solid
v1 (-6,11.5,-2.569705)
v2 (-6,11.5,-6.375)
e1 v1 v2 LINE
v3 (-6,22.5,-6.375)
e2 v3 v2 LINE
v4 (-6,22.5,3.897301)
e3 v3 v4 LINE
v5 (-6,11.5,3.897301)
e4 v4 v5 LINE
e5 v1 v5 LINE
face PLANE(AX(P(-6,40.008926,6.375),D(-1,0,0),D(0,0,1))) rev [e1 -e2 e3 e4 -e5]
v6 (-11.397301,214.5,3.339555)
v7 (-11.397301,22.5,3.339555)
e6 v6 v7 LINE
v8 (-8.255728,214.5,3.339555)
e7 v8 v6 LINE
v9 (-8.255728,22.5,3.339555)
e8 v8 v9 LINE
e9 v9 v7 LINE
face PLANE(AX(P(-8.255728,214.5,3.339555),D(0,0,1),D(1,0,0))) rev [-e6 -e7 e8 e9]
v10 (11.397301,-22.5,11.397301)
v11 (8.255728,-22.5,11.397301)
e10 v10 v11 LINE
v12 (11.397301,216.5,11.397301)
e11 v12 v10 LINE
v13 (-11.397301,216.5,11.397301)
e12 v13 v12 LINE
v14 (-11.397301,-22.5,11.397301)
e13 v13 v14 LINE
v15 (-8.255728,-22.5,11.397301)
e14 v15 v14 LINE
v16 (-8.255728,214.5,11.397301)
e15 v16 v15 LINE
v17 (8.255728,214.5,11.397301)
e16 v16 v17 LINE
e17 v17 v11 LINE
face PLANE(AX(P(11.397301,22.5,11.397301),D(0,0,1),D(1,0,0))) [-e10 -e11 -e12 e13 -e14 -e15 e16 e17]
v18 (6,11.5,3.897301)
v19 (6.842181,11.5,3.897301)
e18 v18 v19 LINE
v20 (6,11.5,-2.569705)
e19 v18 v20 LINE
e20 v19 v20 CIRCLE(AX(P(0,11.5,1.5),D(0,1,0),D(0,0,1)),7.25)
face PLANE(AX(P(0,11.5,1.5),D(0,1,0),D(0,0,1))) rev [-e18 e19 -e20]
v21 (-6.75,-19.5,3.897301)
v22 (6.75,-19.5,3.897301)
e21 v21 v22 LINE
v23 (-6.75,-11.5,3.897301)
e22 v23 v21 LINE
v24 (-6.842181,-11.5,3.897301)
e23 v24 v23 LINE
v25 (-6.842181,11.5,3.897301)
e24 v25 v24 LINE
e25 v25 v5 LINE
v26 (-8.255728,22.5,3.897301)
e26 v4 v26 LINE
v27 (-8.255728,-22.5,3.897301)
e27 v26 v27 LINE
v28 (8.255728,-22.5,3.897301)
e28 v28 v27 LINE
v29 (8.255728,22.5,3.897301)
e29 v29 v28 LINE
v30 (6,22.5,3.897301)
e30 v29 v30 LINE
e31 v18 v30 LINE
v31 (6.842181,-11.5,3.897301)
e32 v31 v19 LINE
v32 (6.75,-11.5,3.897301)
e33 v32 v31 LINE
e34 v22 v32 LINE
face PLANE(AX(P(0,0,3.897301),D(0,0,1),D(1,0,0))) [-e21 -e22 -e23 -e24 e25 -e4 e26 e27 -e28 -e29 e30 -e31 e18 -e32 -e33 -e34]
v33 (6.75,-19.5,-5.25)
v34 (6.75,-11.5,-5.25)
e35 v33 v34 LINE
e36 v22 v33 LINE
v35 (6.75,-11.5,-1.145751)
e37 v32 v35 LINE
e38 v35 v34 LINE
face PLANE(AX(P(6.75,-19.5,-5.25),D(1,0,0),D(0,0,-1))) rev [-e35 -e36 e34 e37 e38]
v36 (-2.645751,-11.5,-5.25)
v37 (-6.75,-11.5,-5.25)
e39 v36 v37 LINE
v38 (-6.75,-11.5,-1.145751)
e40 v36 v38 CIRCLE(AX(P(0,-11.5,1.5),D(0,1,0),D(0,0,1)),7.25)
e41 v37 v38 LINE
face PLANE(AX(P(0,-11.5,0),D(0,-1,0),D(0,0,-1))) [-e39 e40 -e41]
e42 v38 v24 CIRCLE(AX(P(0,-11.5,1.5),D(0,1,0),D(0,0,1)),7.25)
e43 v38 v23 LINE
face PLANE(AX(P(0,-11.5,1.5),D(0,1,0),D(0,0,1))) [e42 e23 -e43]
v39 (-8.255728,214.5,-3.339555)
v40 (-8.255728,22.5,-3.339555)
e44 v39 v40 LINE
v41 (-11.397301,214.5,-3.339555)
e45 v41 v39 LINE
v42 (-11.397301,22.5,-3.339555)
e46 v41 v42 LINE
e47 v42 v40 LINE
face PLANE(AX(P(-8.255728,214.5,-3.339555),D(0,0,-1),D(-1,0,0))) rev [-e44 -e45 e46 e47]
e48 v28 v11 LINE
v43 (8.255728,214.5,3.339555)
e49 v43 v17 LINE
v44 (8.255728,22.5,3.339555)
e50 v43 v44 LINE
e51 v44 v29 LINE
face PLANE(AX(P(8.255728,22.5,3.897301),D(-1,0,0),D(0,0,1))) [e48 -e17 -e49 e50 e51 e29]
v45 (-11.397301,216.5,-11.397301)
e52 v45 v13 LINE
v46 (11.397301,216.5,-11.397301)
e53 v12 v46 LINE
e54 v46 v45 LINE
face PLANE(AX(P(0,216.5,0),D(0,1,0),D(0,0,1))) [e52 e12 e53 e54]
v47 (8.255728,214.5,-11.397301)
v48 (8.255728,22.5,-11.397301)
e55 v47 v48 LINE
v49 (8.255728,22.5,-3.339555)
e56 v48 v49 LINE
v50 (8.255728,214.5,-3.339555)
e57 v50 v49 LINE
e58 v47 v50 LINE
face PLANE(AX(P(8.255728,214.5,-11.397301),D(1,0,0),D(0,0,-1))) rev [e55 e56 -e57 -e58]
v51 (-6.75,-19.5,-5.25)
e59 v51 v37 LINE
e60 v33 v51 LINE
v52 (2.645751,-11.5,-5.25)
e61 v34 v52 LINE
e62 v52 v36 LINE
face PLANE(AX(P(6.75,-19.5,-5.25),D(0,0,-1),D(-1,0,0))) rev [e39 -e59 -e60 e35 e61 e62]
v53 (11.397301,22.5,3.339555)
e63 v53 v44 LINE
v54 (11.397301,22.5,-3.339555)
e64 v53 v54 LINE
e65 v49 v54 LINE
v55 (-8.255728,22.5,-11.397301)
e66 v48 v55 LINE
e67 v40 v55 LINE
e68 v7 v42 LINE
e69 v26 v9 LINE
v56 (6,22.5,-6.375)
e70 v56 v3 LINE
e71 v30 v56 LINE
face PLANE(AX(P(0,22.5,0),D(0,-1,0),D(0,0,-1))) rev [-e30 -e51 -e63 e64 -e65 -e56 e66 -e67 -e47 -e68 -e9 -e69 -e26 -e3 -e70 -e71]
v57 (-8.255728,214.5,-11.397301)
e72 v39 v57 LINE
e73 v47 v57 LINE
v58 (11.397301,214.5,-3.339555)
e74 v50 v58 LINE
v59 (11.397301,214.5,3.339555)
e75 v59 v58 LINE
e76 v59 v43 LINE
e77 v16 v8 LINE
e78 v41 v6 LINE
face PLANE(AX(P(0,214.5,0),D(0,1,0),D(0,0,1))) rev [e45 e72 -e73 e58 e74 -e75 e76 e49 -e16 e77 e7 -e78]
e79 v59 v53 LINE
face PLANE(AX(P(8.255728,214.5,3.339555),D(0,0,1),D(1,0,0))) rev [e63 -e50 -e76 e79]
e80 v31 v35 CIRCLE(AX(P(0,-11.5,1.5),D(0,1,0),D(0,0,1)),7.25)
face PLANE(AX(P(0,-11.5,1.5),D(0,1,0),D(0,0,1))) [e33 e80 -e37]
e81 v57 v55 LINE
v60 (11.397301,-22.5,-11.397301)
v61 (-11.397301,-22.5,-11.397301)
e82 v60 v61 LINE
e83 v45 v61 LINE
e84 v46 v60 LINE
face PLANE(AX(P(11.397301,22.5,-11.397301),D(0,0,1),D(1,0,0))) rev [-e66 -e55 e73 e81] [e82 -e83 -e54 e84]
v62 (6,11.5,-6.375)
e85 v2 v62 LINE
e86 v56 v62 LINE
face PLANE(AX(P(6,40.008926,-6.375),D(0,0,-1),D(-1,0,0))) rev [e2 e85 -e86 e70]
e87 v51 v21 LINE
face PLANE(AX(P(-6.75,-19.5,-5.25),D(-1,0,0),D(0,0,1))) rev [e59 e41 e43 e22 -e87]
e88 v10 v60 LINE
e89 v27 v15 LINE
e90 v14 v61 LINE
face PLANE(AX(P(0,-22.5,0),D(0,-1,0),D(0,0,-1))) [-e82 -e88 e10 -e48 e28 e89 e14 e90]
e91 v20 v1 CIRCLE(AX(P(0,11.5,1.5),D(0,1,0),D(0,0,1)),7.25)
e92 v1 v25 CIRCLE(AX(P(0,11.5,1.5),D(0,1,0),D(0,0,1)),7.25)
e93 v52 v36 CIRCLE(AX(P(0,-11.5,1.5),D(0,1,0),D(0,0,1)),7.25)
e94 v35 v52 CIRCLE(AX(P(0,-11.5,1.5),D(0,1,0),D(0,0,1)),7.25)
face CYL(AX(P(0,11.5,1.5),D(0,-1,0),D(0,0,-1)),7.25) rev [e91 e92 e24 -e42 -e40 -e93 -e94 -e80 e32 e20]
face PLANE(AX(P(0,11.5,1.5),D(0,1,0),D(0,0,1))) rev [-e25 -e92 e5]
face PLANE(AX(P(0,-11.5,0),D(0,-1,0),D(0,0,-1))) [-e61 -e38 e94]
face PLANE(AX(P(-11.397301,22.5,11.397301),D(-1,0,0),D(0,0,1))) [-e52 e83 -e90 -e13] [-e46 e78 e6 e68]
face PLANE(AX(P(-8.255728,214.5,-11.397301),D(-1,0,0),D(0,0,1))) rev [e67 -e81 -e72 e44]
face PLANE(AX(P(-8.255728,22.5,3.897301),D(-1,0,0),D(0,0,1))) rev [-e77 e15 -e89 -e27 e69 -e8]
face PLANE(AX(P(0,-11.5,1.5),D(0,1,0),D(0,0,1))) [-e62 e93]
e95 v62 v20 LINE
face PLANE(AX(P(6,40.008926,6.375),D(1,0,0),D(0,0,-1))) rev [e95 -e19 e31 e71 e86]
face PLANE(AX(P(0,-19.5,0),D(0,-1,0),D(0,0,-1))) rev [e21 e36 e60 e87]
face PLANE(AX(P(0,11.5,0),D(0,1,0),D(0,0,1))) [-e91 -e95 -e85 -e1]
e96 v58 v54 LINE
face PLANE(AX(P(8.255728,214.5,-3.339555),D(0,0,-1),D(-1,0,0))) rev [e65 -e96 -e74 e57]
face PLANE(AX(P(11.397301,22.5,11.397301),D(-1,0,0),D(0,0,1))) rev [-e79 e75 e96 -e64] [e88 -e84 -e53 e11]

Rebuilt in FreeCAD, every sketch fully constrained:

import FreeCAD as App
import Part
import Sketcher
Q = App.Units.Quantity


def add_polygon(sketch, points):
    """Adds a closed chain of lines whose ends are joined by coincident constraints."""
    first, n = sketch.GeometryCount, len(points)
    for a, b in zip(points, points[1:] + points[:1]):
        sketch.addGeometry(Part.LineSegment(App.Vector(*a, 0), App.Vector(*b, 0)), False)
    for i in range(n):
        sketch.addConstraint(Sketcher.Constraint("Coincident", first + i, 2, first + (i + 1) % n, 1))

doc = App.newDocument("Part")
body = doc.addObject("PartDesign::Body", "Body")

sketch1 = body.newObject("Sketcher::SketchObject", "Sketch")
sketch1.AttachmentSupport = (doc.getObject("XZ_Plane"), [""])
sketch1.MapMode = "FlatFace"
add_polygon(sketch1, [(-11, -11), (-11, 11), (11, 11), (11, -11)])
sketch1.addConstraint(Sketcher.Constraint("Vertical", 0))
sketch1.addConstraint(Sketcher.Constraint("Horizontal", 1))
sketch1.addConstraint(Sketcher.Constraint("Vertical", 2))
sketch1.addConstraint(Sketcher.Constraint("Horizontal", 3))
sketch1.addConstraint(Sketcher.Constraint("Symmetric", 0, 2, 2, 2, -1, 1))
sketch1.addConstraint(Sketcher.Constraint("Equal", 3, 0))
sketch1.addConstraint(Sketcher.Constraint("DistanceX", 0, 2, -1, 1, Q("11.397301 mm")))
pad1 = body.newObject("PartDesign::Pad", "Pad")
pad1.Profile = sketch1
pad1.Length = 45
pad1.Midplane = True

sketch2 = body.newObject("Sketcher::SketchObject", "Sketch001")
sketch2.AttachmentSupport = (doc.getObject("XZ_Plane"), [""])
sketch2.MapMode = "FlatFace"
sketch2.addGeometry(Part.Circle(App.Vector(0, 2, 0), App.Vector(0, 0, 1), 7), False)
sketch2.addConstraint(Sketcher.Constraint("PointOnObject", 0, 3, -2))
sketch2.addConstraint(Sketcher.Constraint("Diameter", 0, Q("14.5 mm")))
sketch2.addConstraint(Sketcher.Constraint("DistanceY", -1, 1, 0, 3, Q("1.5 mm")))
pocket1 = body.newObject("PartDesign::Pocket", "Pocket")
pocket1.Profile = sketch2
pocket1.Length = 23
pocket1.Midplane = True

sketch3 = body.newObject("Sketcher::SketchObject", "Sketch002")
sketch3.AttachmentSupport = (doc.getObject("XY_Plane"), [""])
sketch3.MapMode = "FlatFace"
sketch3.AttachmentOffset = App.Placement(App.Vector(0, 0, 11.397301), App.Rotation())
add_polygon(sketch3, [(-8, 22), (-8, -22), (8, -22), (8, 22)])
sketch3.addConstraint(Sketcher.Constraint("Vertical", 0))
sketch3.addConstraint(Sketcher.Constraint("Horizontal", 1))
sketch3.addConstraint(Sketcher.Constraint("Vertical", 2))
sketch3.addConstraint(Sketcher.Constraint("Horizontal", 3))
sketch3.addConstraint(Sketcher.Constraint("Symmetric", 0, 2, 2, 2, -1, 1))
sketch3.addConstraint(Sketcher.Constraint("DistanceY", 0, 2, 0, 1, Q("45 mm")))
sketch3.addConstraint(Sketcher.Constraint("DistanceX", 1, 1, 1, 2, Q("16.511456 mm")))
pocket2 = body.newObject("PartDesign::Pocket", "Pocket001")
pocket2.Profile = sketch3
pocket2.Length = 15
pocket2.Midplane = True

sketch4 = body.newObject("Sketcher::SketchObject", "Sketch003")
sketch4.AttachmentSupport = (doc.getObject("XZ_Plane"), [""])
sketch4.MapMode = "FlatFace"
sketch4.AttachmentOffset = App.Placement(App.Vector(0, 0, -22.5), App.Rotation())
add_polygon(sketch4, [(-11.4, -11.4), (-11.4, -3.3), (-8.3, -3.3), (-8.3, -11.4)])
add_polygon(sketch4, [(8.3, -11.4), (8.3, -3.3), (11.4, -3.3), (11.4, -11.4)])
add_polygon(sketch4, [(-11.4, 3.3), (-11.4, 11.4), (-8.3, 11.4), (-8.3, 3.3)])
add_polygon(sketch4, [(8.3, 3.3), (8.3, 11.4), (11.4, 11.4), (11.4, 3.3)])
sketch4.addConstraint(Sketcher.Constraint("Vertical", 0))
sketch4.addConstraint(Sketcher.Constraint("Horizontal", 1))
sketch4.addConstraint(Sketcher.Constraint("Vertical", 2))
sketch4.addConstraint(Sketcher.Constraint("Horizontal", 3))
sketch4.addConstraint(Sketcher.Constraint("Vertical", 4))
sketch4.addConstraint(Sketcher.Constraint("Horizontal", 5))
sketch4.addConstraint(Sketcher.Constraint("Vertical", 6))
sketch4.addConstraint(Sketcher.Constraint("Horizontal", 7))
sketch4.addConstraint(Sketcher.Constraint("Vertical", 8))
sketch4.addConstraint(Sketcher.Constraint("Horizontal", 9))
sketch4.addConstraint(Sketcher.Constraint("Vertical", 10))
sketch4.addConstraint(Sketcher.Constraint("Horizontal", 11))
sketch4.addConstraint(Sketcher.Constraint("Vertical", 12))
sketch4.addConstraint(Sketcher.Constraint("Horizontal", 13))
sketch4.addConstraint(Sketcher.Constraint("Vertical", 14))
sketch4.addConstraint(Sketcher.Constraint("Horizontal", 15))
sketch4.addConstraint(Sketcher.Constraint("Symmetric", 6, 2, 8, 2, -1, 1))
sketch4.addConstraint(Sketcher.Constraint("Symmetric", 4, 2, 10, 2, -1, 1))
sketch4.addConstraint(Sketcher.Constraint("Symmetric", 2, 2, 12, 2, -1, 1))
sketch4.addConstraint(Sketcher.Constraint("Symmetric", 0, 2, 14, 2, -1, 1))
sketch4.addConstraint(Sketcher.Constraint("Symmetric", 1, 2, 4, 2, -2))
sketch4.addConstraint(Sketcher.Constraint("Symmetric", 3, 2, 6, 2, -2))
sketch4.addConstraint(Sketcher.Constraint("DistanceX", 0, 2, -1, 1, Q("11.397301 mm")))
sketch4.addConstraint(Sketcher.Constraint("DistanceY", 2, 2, -1, 1, Q("11.397301 mm")))
sketch4.addConstraint(Sketcher.Constraint("DistanceX", 1, 1, 1, 2, Q("3.141573 mm")))
sketch4.addConstraint(Sketcher.Constraint("DistanceY", 0, 1, 0, 2, Q("8.057746 mm")))
pad2 = body.newObject("PartDesign::Pad", "Pad001")
pad2.Profile = sketch4
pad2.Length = 192
pad2.Reversed = True

sketch5 = body.newObject("Sketcher::SketchObject", "Sketch004")
sketch5.AttachmentSupport = (doc.getObject("XZ_Plane"), [""])
sketch5.MapMode = "FlatFace"
sketch5.AttachmentOffset = App.Placement(App.Vector(0, 0, -214.5), App.Rotation())
add_polygon(sketch5, [(-11, -11), (-11, 11), (11, 11), (11, -11)])
sketch5.addConstraint(Sketcher.Constraint("Vertical", 0))
sketch5.addConstraint(Sketcher.Constraint("Horizontal", 1))
sketch5.addConstraint(Sketcher.Constraint("Vertical", 2))
sketch5.addConstraint(Sketcher.Constraint("Horizontal", 3))
sketch5.addConstraint(Sketcher.Constraint("Symmetric", 0, 2, 2, 2, -1, 1))
sketch5.addConstraint(Sketcher.Constraint("Equal", 3, 0))
sketch5.addConstraint(Sketcher.Constraint("DistanceX", 0, 2, -1, 1, Q("11.397301 mm")))
pad3 = body.newObject("PartDesign::Pad", "Pad002")
pad3.Profile = sketch5
pad3.Length = 2
pad3.Reversed = True

sketch6 = body.newObject("Sketcher::SketchObject", "Sketch005")
sketch6.AttachmentSupport = (doc.getObject("XZ_Plane"), [""])
sketch6.MapMode = "FlatFace"
sketch6.AttachmentOffset = App.Placement(App.Vector(0, 0, -11.5), App.Rotation())
add_polygon(sketch6, [(-6, 6), (-6, -6), (6, -6), (6, 6)])
sketch6.addConstraint(Sketcher.Constraint("Vertical", 0))
sketch6.addConstraint(Sketcher.Constraint("Horizontal", 1))
sketch6.addConstraint(Sketcher.Constraint("Vertical", 2))
sketch6.addConstraint(Sketcher.Constraint("Horizontal", 3))
sketch6.addConstraint(Sketcher.Constraint("Symmetric", 0, 2, 2, 2, -1, 1))
sketch6.addConstraint(Sketcher.Constraint("DistanceX", 1, 1, 1, 2, Q("12 mm")))
sketch6.addConstraint(Sketcher.Constraint("DistanceY", 0, 2, 0, 1, Q("12.75 mm")))
pocket3 = body.newObject("PartDesign::Pocket", "Pocket002")
pocket3.Profile = sketch6
pocket3.Length = 11

sketch7 = body.newObject("Sketcher::SketchObject", "Sketch006")
sketch7.AttachmentSupport = (doc.getObject("XZ_Plane"), [""])
sketch7.MapMode = "FlatFace"
sketch7.AttachmentOffset = App.Placement(App.Vector(0, 0, 11.5), App.Rotation())
add_polygon(sketch7, [(-7, -5), (-7, 8), (7, 8), (7, -5)])
sketch7.addConstraint(Sketcher.Constraint("Vertical", 0))
sketch7.addConstraint(Sketcher.Constraint("Horizontal", 1))
sketch7.addConstraint(Sketcher.Constraint("Vertical", 2))
sketch7.addConstraint(Sketcher.Constraint("Horizontal", 3))
sketch7.addConstraint(Sketcher.Constraint("Equal", 3, 0))
sketch7.addConstraint(Sketcher.Constraint("DistanceX", 1, 1, 1, 2, Q("13.5 mm")))
sketch7.addConstraint(Sketcher.Constraint("DistanceX", 0, 2, -1, 1, Q("6.75 mm")))
sketch7.addConstraint(Sketcher.Constraint("DistanceY", -1, 1, 0, 2, Q("8.25 mm")))
pocket4 = body.newObject("PartDesign::Pocket", "Pocket003")
pocket4.Profile = sketch7
pocket4.Length = 8
pocket4.Reversed = True

doc.recompute()
